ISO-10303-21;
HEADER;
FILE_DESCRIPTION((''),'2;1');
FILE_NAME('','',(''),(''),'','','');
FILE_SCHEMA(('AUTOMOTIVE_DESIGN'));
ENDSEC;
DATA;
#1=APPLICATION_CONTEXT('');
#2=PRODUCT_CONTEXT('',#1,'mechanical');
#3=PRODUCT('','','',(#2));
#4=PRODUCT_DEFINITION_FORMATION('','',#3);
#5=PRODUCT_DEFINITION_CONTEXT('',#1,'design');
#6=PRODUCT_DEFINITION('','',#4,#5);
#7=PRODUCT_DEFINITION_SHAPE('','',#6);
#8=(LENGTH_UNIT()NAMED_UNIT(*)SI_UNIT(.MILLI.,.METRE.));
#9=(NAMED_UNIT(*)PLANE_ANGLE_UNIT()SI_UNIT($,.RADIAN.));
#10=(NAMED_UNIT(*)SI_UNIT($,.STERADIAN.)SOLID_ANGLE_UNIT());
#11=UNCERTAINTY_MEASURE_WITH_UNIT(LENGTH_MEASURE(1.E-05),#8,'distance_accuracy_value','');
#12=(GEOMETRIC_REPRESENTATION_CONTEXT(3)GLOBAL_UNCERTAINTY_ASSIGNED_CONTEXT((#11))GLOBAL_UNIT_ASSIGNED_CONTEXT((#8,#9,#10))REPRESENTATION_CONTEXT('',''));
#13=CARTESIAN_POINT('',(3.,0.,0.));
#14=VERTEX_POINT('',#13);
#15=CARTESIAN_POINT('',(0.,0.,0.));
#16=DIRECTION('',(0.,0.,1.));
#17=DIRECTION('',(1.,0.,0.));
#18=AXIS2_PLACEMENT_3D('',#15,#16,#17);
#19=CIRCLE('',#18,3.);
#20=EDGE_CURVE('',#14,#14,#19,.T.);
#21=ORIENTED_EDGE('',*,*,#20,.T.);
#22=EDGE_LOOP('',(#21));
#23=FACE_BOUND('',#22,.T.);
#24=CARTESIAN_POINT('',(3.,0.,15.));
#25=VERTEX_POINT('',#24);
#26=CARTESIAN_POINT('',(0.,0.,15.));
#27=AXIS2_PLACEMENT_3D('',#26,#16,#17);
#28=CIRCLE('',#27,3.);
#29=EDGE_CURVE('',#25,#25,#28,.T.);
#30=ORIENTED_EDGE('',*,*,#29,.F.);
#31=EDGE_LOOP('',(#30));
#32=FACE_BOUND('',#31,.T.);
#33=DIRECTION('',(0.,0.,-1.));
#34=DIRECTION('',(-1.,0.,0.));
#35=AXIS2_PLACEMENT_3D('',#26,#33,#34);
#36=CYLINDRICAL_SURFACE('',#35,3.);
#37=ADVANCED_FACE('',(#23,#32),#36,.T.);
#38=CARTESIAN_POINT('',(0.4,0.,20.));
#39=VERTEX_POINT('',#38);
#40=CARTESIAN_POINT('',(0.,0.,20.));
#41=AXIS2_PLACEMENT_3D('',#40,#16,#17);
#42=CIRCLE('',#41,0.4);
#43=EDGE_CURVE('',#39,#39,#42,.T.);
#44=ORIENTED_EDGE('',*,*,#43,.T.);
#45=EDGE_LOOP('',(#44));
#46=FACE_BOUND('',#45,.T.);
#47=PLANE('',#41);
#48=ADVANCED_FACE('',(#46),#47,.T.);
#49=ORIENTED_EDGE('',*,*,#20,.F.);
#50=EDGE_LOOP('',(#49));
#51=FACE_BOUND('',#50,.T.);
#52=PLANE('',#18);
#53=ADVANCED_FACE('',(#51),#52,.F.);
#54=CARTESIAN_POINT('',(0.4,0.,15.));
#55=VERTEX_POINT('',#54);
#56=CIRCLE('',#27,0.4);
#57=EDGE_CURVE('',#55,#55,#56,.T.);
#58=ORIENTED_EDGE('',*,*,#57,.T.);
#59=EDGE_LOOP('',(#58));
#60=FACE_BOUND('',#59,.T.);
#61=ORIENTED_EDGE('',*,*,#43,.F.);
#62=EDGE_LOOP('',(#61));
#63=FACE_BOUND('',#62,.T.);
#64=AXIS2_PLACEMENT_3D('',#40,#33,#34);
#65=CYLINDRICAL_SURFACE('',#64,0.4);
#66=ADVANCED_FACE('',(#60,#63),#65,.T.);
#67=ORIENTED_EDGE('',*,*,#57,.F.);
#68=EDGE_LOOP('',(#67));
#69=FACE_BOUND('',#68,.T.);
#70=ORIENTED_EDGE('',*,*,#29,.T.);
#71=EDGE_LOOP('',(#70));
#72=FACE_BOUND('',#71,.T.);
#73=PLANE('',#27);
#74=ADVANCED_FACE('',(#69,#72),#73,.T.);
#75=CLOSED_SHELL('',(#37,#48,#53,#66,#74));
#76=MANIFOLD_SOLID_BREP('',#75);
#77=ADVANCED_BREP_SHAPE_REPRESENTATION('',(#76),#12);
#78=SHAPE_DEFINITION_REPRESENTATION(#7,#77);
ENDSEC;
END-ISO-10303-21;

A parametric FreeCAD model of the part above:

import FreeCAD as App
import Part
import Sketcher

doc = App.newDocument("Part")
body = doc.addObject("PartDesign::Body", "Body")

sketch1 = doc.addObject("Sketcher::SketchObject", "Sketch")
body.addObject(sketch1)
sketch1.AttachmentSupport = (doc.XY_Plane, [""])
sketch1.MapMode = "FlatFace"
sketch1.addGeometry(Part.Circle(App.Vector(0, 0, 0), App.Vector(0, 0, 1), 3), False)
sketch1.addConstraint(Sketcher.Constraint("Coincident", 0, 3, -1, 1))
sketch1.addConstraint(Sketcher.Constraint("Diameter", 0, 6.0))
pad1 = doc.addObject("PartDesign::Pad", "Pad")
body.addObject(pad1)
pad1.Profile = sketch1
pad1.Length = 15

sketch2 = doc.addObject("Sketcher::SketchObject", "Sketch001")
body.addObject(sketch2)
sketch2.AttachmentSupport = (doc.XY_Plane, [""])
sketch2.MapMode = "FlatFace"
sketch2.AttachmentOffset = App.Placement(App.Vector(0, 0, 15), App.Rotation())
sketch2.addGeometry(Part.Circle(App.Vector(0, 0, 0), App.Vector(0, 0, 1), 0.4), False)
sketch2.addConstraint(Sketcher.Constraint("Coincident", 0, 3, -1, 1))
sketch2.addConstraint(Sketcher.Constraint("Diameter", 0, 0.8))
pad2 = doc.addObject("PartDesign::Pad", "Pad001")
body.addObject(pad2)
pad2.Profile = sketch2
pad2.Length = 5

doc.recompute()
